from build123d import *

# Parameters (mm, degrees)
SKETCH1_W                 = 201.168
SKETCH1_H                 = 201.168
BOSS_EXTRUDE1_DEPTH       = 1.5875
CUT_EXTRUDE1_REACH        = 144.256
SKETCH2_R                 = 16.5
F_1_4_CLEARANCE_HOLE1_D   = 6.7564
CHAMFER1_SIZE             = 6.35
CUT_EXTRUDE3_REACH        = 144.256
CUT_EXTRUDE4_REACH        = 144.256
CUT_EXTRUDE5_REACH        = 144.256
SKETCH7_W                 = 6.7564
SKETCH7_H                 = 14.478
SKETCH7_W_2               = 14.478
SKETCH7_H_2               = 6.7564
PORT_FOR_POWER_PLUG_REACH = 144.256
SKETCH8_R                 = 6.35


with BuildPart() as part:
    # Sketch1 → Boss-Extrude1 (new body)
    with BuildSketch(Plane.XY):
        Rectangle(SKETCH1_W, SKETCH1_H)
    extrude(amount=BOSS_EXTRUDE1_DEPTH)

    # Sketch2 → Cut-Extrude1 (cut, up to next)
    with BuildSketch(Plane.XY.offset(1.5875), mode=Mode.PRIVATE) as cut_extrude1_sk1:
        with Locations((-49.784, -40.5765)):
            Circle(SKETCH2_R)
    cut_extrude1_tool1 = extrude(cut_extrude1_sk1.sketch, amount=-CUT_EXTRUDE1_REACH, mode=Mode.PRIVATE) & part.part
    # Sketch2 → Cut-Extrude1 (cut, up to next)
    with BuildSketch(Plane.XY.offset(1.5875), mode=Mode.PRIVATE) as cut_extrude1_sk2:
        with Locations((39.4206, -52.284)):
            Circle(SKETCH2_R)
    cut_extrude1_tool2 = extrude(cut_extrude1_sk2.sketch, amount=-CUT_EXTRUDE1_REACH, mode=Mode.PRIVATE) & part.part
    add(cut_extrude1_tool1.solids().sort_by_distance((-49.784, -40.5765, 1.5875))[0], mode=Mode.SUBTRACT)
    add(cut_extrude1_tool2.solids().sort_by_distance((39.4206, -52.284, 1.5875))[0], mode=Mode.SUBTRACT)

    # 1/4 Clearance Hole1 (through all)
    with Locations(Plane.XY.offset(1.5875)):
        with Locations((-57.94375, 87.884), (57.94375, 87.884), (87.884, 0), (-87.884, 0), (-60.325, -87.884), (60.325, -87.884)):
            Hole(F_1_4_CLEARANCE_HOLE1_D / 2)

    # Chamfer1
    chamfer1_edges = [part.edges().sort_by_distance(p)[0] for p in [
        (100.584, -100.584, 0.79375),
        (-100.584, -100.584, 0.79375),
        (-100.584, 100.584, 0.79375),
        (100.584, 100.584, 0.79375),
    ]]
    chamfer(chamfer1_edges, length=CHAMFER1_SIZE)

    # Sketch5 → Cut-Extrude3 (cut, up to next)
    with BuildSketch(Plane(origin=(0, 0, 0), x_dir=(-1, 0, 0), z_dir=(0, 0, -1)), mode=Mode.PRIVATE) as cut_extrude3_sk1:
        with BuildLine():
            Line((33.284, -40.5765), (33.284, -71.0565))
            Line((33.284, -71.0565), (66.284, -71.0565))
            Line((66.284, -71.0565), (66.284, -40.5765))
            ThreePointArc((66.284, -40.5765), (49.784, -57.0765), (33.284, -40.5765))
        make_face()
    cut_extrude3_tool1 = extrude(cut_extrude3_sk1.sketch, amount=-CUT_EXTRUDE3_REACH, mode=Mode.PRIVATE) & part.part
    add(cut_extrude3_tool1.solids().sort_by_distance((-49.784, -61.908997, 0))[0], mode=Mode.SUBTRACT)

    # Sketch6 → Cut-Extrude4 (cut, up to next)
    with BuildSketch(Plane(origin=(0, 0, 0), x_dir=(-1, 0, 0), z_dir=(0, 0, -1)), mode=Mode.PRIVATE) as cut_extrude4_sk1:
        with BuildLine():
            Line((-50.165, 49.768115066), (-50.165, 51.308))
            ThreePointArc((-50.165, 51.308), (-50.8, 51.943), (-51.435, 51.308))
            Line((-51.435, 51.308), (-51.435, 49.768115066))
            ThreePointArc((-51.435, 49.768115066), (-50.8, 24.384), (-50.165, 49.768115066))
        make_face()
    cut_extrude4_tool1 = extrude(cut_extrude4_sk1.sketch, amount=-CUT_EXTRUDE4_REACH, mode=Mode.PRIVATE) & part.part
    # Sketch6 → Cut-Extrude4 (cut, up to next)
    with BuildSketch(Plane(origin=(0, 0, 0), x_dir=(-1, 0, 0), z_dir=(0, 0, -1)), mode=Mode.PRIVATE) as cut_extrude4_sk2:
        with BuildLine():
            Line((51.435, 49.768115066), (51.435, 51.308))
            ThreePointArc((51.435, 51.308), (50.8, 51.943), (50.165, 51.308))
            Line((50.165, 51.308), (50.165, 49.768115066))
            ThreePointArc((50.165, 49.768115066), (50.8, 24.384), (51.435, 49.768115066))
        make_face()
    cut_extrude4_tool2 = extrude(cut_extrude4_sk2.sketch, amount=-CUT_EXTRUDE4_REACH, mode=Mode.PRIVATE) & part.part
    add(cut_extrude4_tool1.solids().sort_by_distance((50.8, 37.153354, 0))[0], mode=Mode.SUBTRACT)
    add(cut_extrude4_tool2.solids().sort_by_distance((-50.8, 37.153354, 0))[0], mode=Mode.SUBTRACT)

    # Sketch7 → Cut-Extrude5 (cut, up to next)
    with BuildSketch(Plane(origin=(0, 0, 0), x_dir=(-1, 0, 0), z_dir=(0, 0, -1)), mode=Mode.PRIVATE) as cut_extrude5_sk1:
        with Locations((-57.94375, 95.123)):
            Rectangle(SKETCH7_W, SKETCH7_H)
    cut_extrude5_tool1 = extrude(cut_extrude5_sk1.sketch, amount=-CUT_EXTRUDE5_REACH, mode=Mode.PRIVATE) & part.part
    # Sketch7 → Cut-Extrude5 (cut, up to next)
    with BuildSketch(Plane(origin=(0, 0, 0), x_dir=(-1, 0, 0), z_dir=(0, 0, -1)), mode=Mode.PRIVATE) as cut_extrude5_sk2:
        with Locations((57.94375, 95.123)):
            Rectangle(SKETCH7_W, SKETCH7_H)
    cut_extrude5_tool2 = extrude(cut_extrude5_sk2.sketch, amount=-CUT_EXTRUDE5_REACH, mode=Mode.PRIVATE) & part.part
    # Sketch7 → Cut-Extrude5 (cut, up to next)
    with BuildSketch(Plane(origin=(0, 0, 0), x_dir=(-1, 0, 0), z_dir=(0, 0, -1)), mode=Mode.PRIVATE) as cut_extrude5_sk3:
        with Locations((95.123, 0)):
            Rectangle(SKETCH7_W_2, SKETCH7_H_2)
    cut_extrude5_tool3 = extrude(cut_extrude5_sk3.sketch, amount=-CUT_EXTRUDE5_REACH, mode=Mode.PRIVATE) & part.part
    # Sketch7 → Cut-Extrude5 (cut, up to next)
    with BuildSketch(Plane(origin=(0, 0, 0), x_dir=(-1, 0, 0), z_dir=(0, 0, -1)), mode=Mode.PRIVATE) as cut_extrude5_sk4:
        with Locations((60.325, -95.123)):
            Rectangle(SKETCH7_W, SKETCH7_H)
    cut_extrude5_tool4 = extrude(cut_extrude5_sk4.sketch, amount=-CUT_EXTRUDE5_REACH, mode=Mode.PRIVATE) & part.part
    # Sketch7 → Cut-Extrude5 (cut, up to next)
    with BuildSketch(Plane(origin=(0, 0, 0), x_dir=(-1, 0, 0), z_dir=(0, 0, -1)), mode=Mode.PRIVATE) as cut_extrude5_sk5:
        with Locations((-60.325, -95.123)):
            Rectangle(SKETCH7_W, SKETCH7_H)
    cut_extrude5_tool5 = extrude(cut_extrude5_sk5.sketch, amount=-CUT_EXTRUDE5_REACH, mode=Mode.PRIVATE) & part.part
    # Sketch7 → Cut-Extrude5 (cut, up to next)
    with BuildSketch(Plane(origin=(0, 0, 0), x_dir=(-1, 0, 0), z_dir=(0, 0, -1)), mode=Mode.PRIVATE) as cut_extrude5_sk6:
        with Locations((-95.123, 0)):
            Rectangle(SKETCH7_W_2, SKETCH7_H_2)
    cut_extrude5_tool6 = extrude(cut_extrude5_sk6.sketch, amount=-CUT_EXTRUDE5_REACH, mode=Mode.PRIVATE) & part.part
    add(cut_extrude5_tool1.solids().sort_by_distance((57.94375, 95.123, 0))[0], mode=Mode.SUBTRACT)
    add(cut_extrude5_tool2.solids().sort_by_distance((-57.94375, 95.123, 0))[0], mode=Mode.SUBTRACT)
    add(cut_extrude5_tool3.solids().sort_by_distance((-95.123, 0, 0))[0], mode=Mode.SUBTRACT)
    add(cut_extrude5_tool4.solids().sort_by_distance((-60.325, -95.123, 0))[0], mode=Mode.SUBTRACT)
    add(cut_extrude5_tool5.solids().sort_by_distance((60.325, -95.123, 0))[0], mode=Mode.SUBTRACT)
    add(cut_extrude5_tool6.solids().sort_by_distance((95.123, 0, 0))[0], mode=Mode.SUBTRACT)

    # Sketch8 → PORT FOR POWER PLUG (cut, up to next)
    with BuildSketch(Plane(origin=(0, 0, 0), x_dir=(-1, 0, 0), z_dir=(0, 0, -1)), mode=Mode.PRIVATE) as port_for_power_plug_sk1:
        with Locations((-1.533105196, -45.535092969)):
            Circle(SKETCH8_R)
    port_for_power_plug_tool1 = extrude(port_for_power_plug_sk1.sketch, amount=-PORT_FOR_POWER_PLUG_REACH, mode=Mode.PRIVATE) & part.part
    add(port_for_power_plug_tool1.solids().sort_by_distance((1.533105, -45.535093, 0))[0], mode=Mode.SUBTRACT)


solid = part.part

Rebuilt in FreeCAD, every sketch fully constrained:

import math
import FreeCAD as App
import Part
import Sketcher
from FreeCAD import Vector
Q = App.Units.Quantity


def edges_at(feature, points):
    """Names of the edges that pass closest to the given points."""
    edges = feature.Shape.Edges
    near = lambda p: min(range(len(edges)), key=lambda i: edges[i].distToShape(Part.Vertex(*p))[0])
    return sorted({f"Edge{near(p) + 1}" for p in points})


def add_polygon(sketch, points):
    """Adds a closed chain of lines whose ends are joined by coincident constraints."""
    first, n = sketch.GeometryCount, len(points)
    for a, b in zip(points, points[1:] + points[:1]):
        sketch.addGeometry(Part.LineSegment(App.Vector(*a, 0), App.Vector(*b, 0)), False)
    for i in range(n):
        sketch.addConstraint(Sketcher.Constraint("Coincident", first + i, 2, first + (i + 1) % n, 1))

doc = App.newDocument("Part")
body = doc.addObject("PartDesign::Body", "Body")

# Sketch on XY plane
sketch1 = body.newObject("Sketcher::SketchObject", "Sketch")
sketch1.AttachmentSupport = (doc.getObject("XY_Plane"), [""])
sketch1.MapMode = "FlatFace"
add_polygon(sketch1, [(-101, 101), (-101, -101), (101, -101), (101, 101)])  # lines 0-3
sketch1.addConstraint(Sketcher.Constraint("Vertical", 0))
sketch1.addConstraint(Sketcher.Constraint("Horizontal", 1))
sketch1.addConstraint(Sketcher.Constraint("Vertical", 2))
sketch1.addConstraint(Sketcher.Constraint("Horizontal", 3))
sketch1.addConstraint(Sketcher.Constraint("Symmetric", 0, 2, 2, 2, -1, 1))
sketch1.addConstraint(Sketcher.Constraint("Equal", 3, 0))
sketch1.addConstraint(Sketcher.Constraint("DistanceX", 1, 1, 1, 2, Q("7.92 in")))
pad1 = body.newObject("PartDesign::Pad", "Pad")
pad1.Profile = sketch1
pad1.Length = Q("0.0625 in")

# Sketch on XY plane
sketch2 = body.newObject("Sketcher::SketchObject", "Sketch001")
sketch2.AttachmentSupport = (doc.getObject("XY_Plane"), [""])
sketch2.MapMode = "FlatFace"
sketch2.AttachmentOffset = App.Placement(Vector(0, 0, 0.0625 * 25.4), App.Rotation())
sketch2.addGeometry(Part.Circle(Vector(-50, -41, 0), Vector(0, 0, 1), 16), False)
sketch2.addConstraint(Sketcher.Constraint("Diameter", 0, 33.0))
sketch2.addConstraint(Sketcher.Constraint("DistanceX", 0, 3, -1, 1, Q("1.96 in")))
sketch2.addConstraint(Sketcher.Constraint("DistanceY", 0, 3, -1, 1, Q("1.5975 in")))
pocket1 = body.newObject("PartDesign::Pocket", "Pocket")
pocket1.Profile = sketch2
pocket1.Type = "UpToFirst"

# Sketch on XY plane
sketch3 = body.newObject("Sketcher::SketchObject", "Sketch002")
sketch3.AttachmentSupport = (doc.getObject("XY_Plane"), [""])
sketch3.MapMode = "FlatFace"
sketch3.AttachmentOffset = App.Placement(Vector(0, 0, 0.0625 * 25.4), App.Rotation())
sketch3.addGeometry(Part.Circle(Vector(39, -52, 0), Vector(0, 0, 1), 16), False)
sketch3.addConstraint(Sketcher.Constraint("Diameter", 0, 33.0))
sketch3.addConstraint(Sketcher.Constraint("DistanceX", -1, 1, 0, 3, 39.4206))
sketch3.addConstraint(Sketcher.Constraint("DistanceY", 0, 3, -1, 1, 52.284))
pocket2 = body.newObject("PartDesign::Pocket", "Pocket001")
pocket2.Profile = sketch3
pocket2.Type = "UpToFirst"

# Sketch on XY plane
sketch4 = body.newObject("Sketcher::SketchObject", "Sketch003")
sketch4.AttachmentSupport = (doc.getObject("XY_Plane"), [""])
sketch4.MapMode = "FlatFace"
sketch4.AttachmentOffset = App.Placement(Vector(0, 0, 0.0625 * 25.4), App.Rotation())
sketch4.addGeometry(Part.Circle(Vector(-57.9, 87.9, 0), Vector(0, 0, 1), 3.4), False)
sketch4.addGeometry(Part.Circle(Vector(57.9, 87.9, 0), Vector(0, 0, 1), 3.4), False)
sketch4.addGeometry(Part.Circle(Vector(87.9, 0, 0), Vector(0, 0, 1), 3.4), False)
sketch4.addGeometry(Part.Circle(Vector(-87.9, 0, 0), Vector(0, 0, 1), 3.4), False)
sketch4.addGeometry(Part.Circle(Vector(-60.3, -87.9, 0), Vector(0, 0, 1), 3.4), False)
sketch4.addGeometry(Part.Circle(Vector(60.3, -87.9, 0), Vector(0, 0, 1), 3.4), False)
sketch4.addConstraint(Sketcher.Constraint("Equal", 0, 1))
sketch4.addConstraint(Sketcher.Constraint("Equal", 1, 2))
sketch4.addConstraint(Sketcher.Constraint("Equal", 2, 3))
sketch4.addConstraint(Sketcher.Constraint("Equal", 3, 4))
sketch4.addConstraint(Sketcher.Constraint("Equal", 4, 5))
sketch4.addConstraint(Sketcher.Constraint("Symmetric", 2, 3, 3, 3, -1, 1))
sketch4.addConstraint(Sketcher.Constraint("Symmetric", 0, 3, 1, 3, -2))
sketch4.addConstraint(Sketcher.Constraint("Symmetric", 4, 3, 5, 3, -2))
sketch4.addConstraint(Sketcher.Constraint("PointOnObject", 2, 3, -1))
sketch4.addConstraint(Sketcher.Constraint("Diameter", 0, Q("0.266 in")))
sketch4.addConstraint(Sketcher.Constraint("DistanceY", -1, 1, 0, 3, Q("3.46 in")))
sketch4.addConstraint(Sketcher.Constraint("DistanceX", -1, 1, 2, 3, Q("3.46 in")))
sketch4.addConstraint(Sketcher.Constraint("DistanceY", 4, 3, -1, 1, Q("3.46 in")))
sketch4.addConstraint(Sketcher.Constraint("DistanceX", 4, 3, 5, 3, Q("4.75 in")))
sketch4.addConstraint(Sketcher.Constraint("DistanceX", 0, 3, -1, 1, Q("2.28125 in")))
doc.recompute()
hole = body.newObject("PartDesign::Hole", "Hole")
hole.Profile = sketch4
hole.ThreadType = "None"
hole.Diameter = Q("0.266 in")
hole.DepthType = "ThroughAll"
doc.recompute()

chamfer = body.newObject("PartDesign::Chamfer", "Chamfer")
chamfer.Base = (hole, edges_at(hole, [
    (100.584, -100.584, 0.794),
    (-100.584, -100.584, 0.794),
    (-100.584, 100.584, 0.794),
    (100.584, 100.584, 0.794),
]))
chamfer.Size = Q("0.25 in")

# Sketch on XY plane
sketch5 = body.newObject("Sketcher::SketchObject", "Sketch004")
sketch5.AttachmentSupport = (doc.getObject("XY_Plane"), [""])
sketch5.MapMode = "FlatFace"
sketch5.addGeometry(Part.LineSegment(Vector(-33, -41, 0), Vector(-33, -71, 0)), False)
sketch5.addGeometry(Part.LineSegment(Vector(-33, -71, 0), Vector(-66, -71, 0)), False)
sketch5.addGeometry(Part.LineSegment(Vector(-66, -71, 0), Vector(-66, -41, 0)), False)
sketch5.addGeometry(Part.ArcOfCircle(Part.Circle(Vector(-50, -41, 0), Vector(0, 0, 1), 16), math.radians(180), math.radians(360)), False)
sketch5.addConstraint(Sketcher.Constraint("Coincident", 0, 2, 1, 1))
sketch5.addConstraint(Sketcher.Constraint("Coincident", 1, 2, 2, 1))
sketch5.addConstraint(Sketcher.Constraint("Tangent", 2, 2, 3, 1))
sketch5.addConstraint(Sketcher.Constraint("Tangent", 3, 2, 0, 1))
sketch5.addConstraint(Sketcher.Constraint("Vertical", 0))
sketch5.addConstraint(Sketcher.Constraint("Horizontal", 1))
sketch5.addConstraint(Sketcher.Constraint("Vertical", 2))
sketch5.addConstraint(Sketcher.Constraint("DistanceY", 0, 2, 0, 1, Q("1.2 in")))
sketch5.addConstraint(Sketcher.Constraint("DistanceX", 3, 3, -1, 1, Q("1.96 in")))
sketch5.addConstraint(Sketcher.Constraint("Radius", 3, 16.5))
sketch5.addConstraint(Sketcher.Constraint("DistanceY", 3, 3, -1, 1, Q("1.5975 in")))
pocket3 = body.newObject("PartDesign::Pocket", "Pocket002")
pocket3.Profile = sketch5
pocket3.Type = "UpToFirst"
pocket3.Reversed = True

# Sketch on XY plane
sketch6 = body.newObject("Sketcher::SketchObject", "Sketch005")
sketch6.AttachmentSupport = (doc.getObject("XY_Plane"), [""])
sketch6.MapMode = "FlatFace"
sketch6.addGeometry(Part.LineSegment(Vector(50.2, 49.8, 0), Vector(50.2, 51.3, 0)), False)
sketch6.addGeometry(Part.ArcOfCircle(Part.Circle(Vector(50.8, 51.3, 0), Vector(0, 0, 1), 0.6), math.radians(0), math.radians(180)), False)
sketch6.addGeometry(Part.LineSegment(Vector(51.4, 51.3, 0), Vector(51.4, 49.8, 0)), False)
sketch6.addGeometry(Part.ArcOfCircle(Part.Circle(Vector(50.8, 37.1, 0), Vector(0, 0, 1), 12.7), math.radians(93), math.radians(447)), False)
sketch6.addConstraint(Sketcher.Constraint("Tangent", 0, 2, 1, 2))
sketch6.addConstraint(Sketcher.Constraint("Tangent", 1, 1, 2, 1))
sketch6.addConstraint(Sketcher.Constraint("Coincident", 2, 2, 3, 2))
sketch6.addConstraint(Sketcher.Constraint("Coincident", 3, 1, 0, 1))
sketch6.addConstraint(Sketcher.Constraint("Vertical", 0))
sketch6.addConstraint(Sketcher.Constraint("Vertical", 2))
sketch6.addConstraint(Sketcher.Constraint("Horizontal", 2, 2, 3, 1))
sketch6.addConstraint(Sketcher.Constraint("Radius", 3, Q("0.5 in")))
sketch6.addConstraint(Sketcher.Constraint("DistanceX", -1, 1, 1, 3, Q("2 in")))
sketch6.addConstraint(Sketcher.Constraint("Radius", 1, Q("0.025 in")))
sketch6.addConstraint(Sketcher.Constraint("DistanceY", -1, 1, 1, 3, Q("2.02 in")))
sketch6.addConstraint(Sketcher.Constraint("DistanceY", -1, 1, 3, 3, Q("1.46 in")))
pocket4 = body.newObject("PartDesign::Pocket", "Pocket003")
pocket4.Profile = sketch6
pocket4.Type = "UpToFirst"
pocket4.Reversed = True

# Sketch on XY plane
sketch7 = body.newObject("Sketcher::SketchObject", "Sketch006")
sketch7.AttachmentSupport = (doc.getObject("XY_Plane"), [""])
sketch7.MapMode = "FlatFace"
sketch7.addGeometry(Part.LineSegment(Vector(-51.4, 49.8, 0), Vector(-51.4, 51.3, 0)), False)
sketch7.addGeometry(Part.ArcOfCircle(Part.Circle(Vector(-50.8, 51.3, 0), Vector(0, 0, 1), 0.6), math.radians(0), math.radians(180)), False)
sketch7.addGeometry(Part.LineSegment(Vector(-50.2, 51.3, 0), Vector(-50.2, 49.8, 0)), False)
sketch7.addGeometry(Part.ArcOfCircle(Part.Circle(Vector(-50.8, 37.1, 0), Vector(0, 0, 1), 12.7), math.radians(93), math.radians(447)), False)
sketch7.addConstraint(Sketcher.Constraint("Tangent", 0, 2, 1, 2))
sketch7.addConstraint(Sketcher.Constraint("Tangent", 1, 1, 2, 1))
sketch7.addConstraint(Sketcher.Constraint("Coincident", 2, 2, 3, 2))
sketch7.addConstraint(Sketcher.Constraint("Coincident", 3, 1, 0, 1))
sketch7.addConstraint(Sketcher.Constraint("Vertical", 0))
sketch7.addConstraint(Sketcher.Constraint("Vertical", 2))
sketch7.addConstraint(Sketcher.Constraint("Horizontal", 2, 2, 3, 1))
sketch7.addConstraint(Sketcher.Constraint("Radius", 3, Q("0.5 in")))
sketch7.addConstraint(Sketcher.Constraint("DistanceX", 1, 3, -1, 1, Q("2 in")))
sketch7.addConstraint(Sketcher.Constraint("Radius", 1, Q("0.025 in")))
sketch7.addConstraint(Sketcher.Constraint("DistanceY", -1, 1, 1, 3, Q("2.02 in")))
sketch7.addConstraint(Sketcher.Constraint("DistanceY", -1, 1, 3, 3, Q("1.46 in")))
pocket5 = body.newObject("PartDesign::Pocket", "Pocket004")
pocket5.Profile = sketch7
pocket5.Type = "UpToFirst"
pocket5.Reversed = True

# Sketch on XY plane
sketch8 = body.newObject("Sketcher::SketchObject", "Sketch007")
sketch8.AttachmentSupport = (doc.getObject("XY_Plane"), [""])
sketch8.MapMode = "FlatFace"
add_polygon(sketch8, [(61, 102), (61, 88), (55, 88), (55, 102)])  # lines 0-3
sketch8.addConstraint(Sketcher.Constraint("Vertical", 0))
sketch8.addConstraint(Sketcher.Constraint("Horizontal", 1))
sketch8.addConstraint(Sketcher.Constraint("Vertical", 2))
sketch8.addConstraint(Sketcher.Constraint("Horizontal", 3))
sketch8.addConstraint(Sketcher.Constraint("DistanceY", 0, 2, 0, 1, Q("0.57 in")))
sketch8.addConstraint(Sketcher.Constraint("DistanceX", 1, 2, 1, 1, Q("0.266 in")))
sketch8.addConstraint(Sketcher.Constraint("DistanceY", -1, 1, 0, 2, Q("3.46 in")))
sketch8.addConstraint(Sketcher.Constraint("DistanceX", -1, 1, 0, 2, 61.32195))
pocket6 = body.newObject("PartDesign::Pocket", "Pocket005")
pocket6.Profile = sketch8
pocket6.Type = "UpToFirst"
pocket6.Reversed = True

# Sketch on XY plane
sketch9 = body.newObject("Sketcher::SketchObject", "Sketch008")
sketch9.AttachmentSupport = (doc.getObject("XY_Plane"), [""])
sketch9.MapMode = "FlatFace"
add_polygon(sketch9, [(-55, 102), (-55, 88), (-61, 88), (-61, 102)])  # lines 0-3
sketch9.addConstraint(Sketcher.Constraint("Vertical", 0))
sketch9.addConstraint(Sketcher.Constraint("Horizontal", 1))
sketch9.addConstraint(Sketcher.Constraint("Vertical", 2))
sketch9.addConstraint(Sketcher.Constraint("Horizontal", 3))
sketch9.addConstraint(Sketcher.Constraint("DistanceY", 0, 2, 0, 1, Q("0.57 in")))
sketch9.addConstraint(Sketcher.Constraint("DistanceX", 1, 2, 1, 1, Q("0.266 in")))
sketch9.addConstraint(Sketcher.Constraint("DistanceY", -1, 1, 0, 2, Q("3.46 in")))
sketch9.addConstraint(Sketcher.Constraint("DistanceX", 0, 2, -1, 1, 54.56555))
pocket7 = body.newObject("PartDesign::Pocket", "Pocket006")
pocket7.Profile = sketch9
pocket7.Type = "UpToFirst"
pocket7.Reversed = True

# Sketch on XY plane
sketch10 = body.newObject("Sketcher::SketchObject", "Sketch009")
sketch10.AttachmentSupport = (doc.getObject("XY_Plane"), [""])
sketch10.MapMode = "FlatFace"
add_polygon(sketch10, [(-88, 3), (-88, -3), (-102, -3), (-102, 3)])  # lines 0-3
sketch10.addConstraint(Sketcher.Constraint("Vertical", 0))
sketch10.addConstraint(Sketcher.Constraint("Horizontal", 1))
sketch10.addConstraint(Sketcher.Constraint("Vertical", 2))
sketch10.addConstraint(Sketcher.Constraint("Horizontal", 3))
sketch10.addConstraint(Sketcher.Constraint("DistanceX", 1, 2, 1, 1, Q("0.57 in")))
sketch10.addConstraint(Sketcher.Constraint("DistanceY", 0, 2, 0, 1, Q("0.266 in")))
sketch10.addConstraint(Sketcher.Constraint("DistanceX", 0, 2, -1, 1, Q("3.46 in")))
sketch10.addConstraint(Sketcher.Constraint("DistanceY", 0, 2, -1, 1, Q("0.133 in")))
pocket8 = body.newObject("PartDesign::Pocket", "Pocket007")
pocket8.Profile = sketch10
pocket8.Type = "UpToFirst"
pocket8.Reversed = True

# Sketch on XY plane
sketch11 = body.newObject("Sketcher::SketchObject", "Sketch010")
sketch11.AttachmentSupport = (doc.getObject("XY_Plane"), [""])
sketch11.MapMode = "FlatFace"
add_polygon(sketch11, [(-57, -88), (-57, -102), (-64, -102), (-64, -88)])  # lines 0-3
sketch11.addConstraint(Sketcher.Constraint("Vertical", 0))
sketch11.addConstraint(Sketcher.Constraint("Horizontal", 1))
sketch11.addConstraint(Sketcher.Constraint("Vertical", 2))
sketch11.addConstraint(Sketcher.Constraint("Horizontal", 3))
sketch11.addConstraint(Sketcher.Constraint("DistanceY", 0, 2, 0, 1, Q("0.57 in")))
sketch11.addConstraint(Sketcher.Constraint("DistanceX", 1, 2, 1, 1, Q("0.266 in")))
sketch11.addConstraint(Sketcher.Constraint("DistanceY", 0, 2, -1, 1, Q("4.03 in")))
sketch11.addConstraint(Sketcher.Constraint("DistanceX", 0, 2, -1, 1, Q("2.242 in")))
pocket9 = body.newObject("PartDesign::Pocket", "Pocket008")
pocket9.Profile = sketch11
pocket9.Type = "UpToFirst"
pocket9.Reversed = True

# Sketch on XY plane
sketch12 = body.newObject("Sketcher::SketchObject", "Sketch011")
sketch12.AttachmentSupport = (doc.getObject("XY_Plane"), [""])
sketch12.MapMode = "FlatFace"
add_polygon(sketch12, [(64, -88), (64, -102), (57, -102), (57, -88)])  # lines 0-3
sketch12.addConstraint(Sketcher.Constraint("Vertical", 0))
sketch12.addConstraint(Sketcher.Constraint("Horizontal", 1))
sketch12.addConstraint(Sketcher.Constraint("Vertical", 2))
sketch12.addConstraint(Sketcher.Constraint("Horizontal", 3))
sketch12.addConstraint(Sketcher.Constraint("DistanceY", 0, 2, 0, 1, Q("0.57 in")))
sketch12.addConstraint(Sketcher.Constraint("DistanceX", 1, 2, 1, 1, Q("0.266 in")))
sketch12.addConstraint(Sketcher.Constraint("DistanceY", 0, 2, -1, 1, Q("4.03 in")))
sketch12.addConstraint(Sketcher.Constraint("DistanceX", -1, 1, 0, 2, Q("2.508 in")))
pocket10 = body.newObject("PartDesign::Pocket", "Pocket009")
pocket10.Profile = sketch12
pocket10.Type = "UpToFirst"
pocket10.Reversed = True

# Sketch on XY plane
sketch13 = body.newObject("Sketcher::SketchObject", "Sketch012")
sketch13.AttachmentSupport = (doc.getObject("XY_Plane"), [""])
sketch13.MapMode = "FlatFace"
add_polygon(sketch13, [(102, 3), (102, -3), (88, -3), (88, 3)])  # lines 0-3
sketch13.addConstraint(Sketcher.Constraint("Vertical", 0))
sketch13.addConstraint(Sketcher.Constraint("Horizontal", 1))
sketch13.addConstraint(Sketcher.Constraint("Vertical", 2))
sketch13.addConstraint(Sketcher.Constraint("Horizontal", 3))
sketch13.addConstraint(Sketcher.Constraint("DistanceX", 1, 2, 1, 1, Q("0.57 in")))
sketch13.addConstraint(Sketcher.Constraint("DistanceY", 0, 2, 0, 1, Q("0.266 in")))
sketch13.addConstraint(Sketcher.Constraint("DistanceX", -1, 1, 0, 2, Q("4.03 in")))
sketch13.addConstraint(Sketcher.Constraint("DistanceY", 0, 2, -1, 1, Q("0.133 in")))
pocket11 = body.newObject("PartDesign::Pocket", "Pocket010")
pocket11.Profile = sketch13
pocket11.Type = "UpToFirst"
pocket11.Reversed = True

# Sketch on XY plane
sketch14 = body.newObject("Sketcher::SketchObject", "Sketch013")
sketch14.AttachmentSupport = (doc.getObject("XY_Plane"), [""])
sketch14.MapMode = "FlatFace"
sketch14.addGeometry(Part.Circle(Vector(2, -46, 0), Vector(0, 0, 1), 6), False)
sketch14.addConstraint(Sketcher.Constraint("Diameter", 0, Q("0.5 in")))
sketch14.addConstraint(Sketcher.Constraint("DistanceX", -1, 1, 0, 3, 1.533105))
sketch14.addConstraint(Sketcher.Constraint("DistanceY", 0, 3, -1, 1, 45.535093))
pocket12 = body.newObject("PartDesign::Pocket", "Pocket011")
pocket12.Profile = sketch14
pocket12.Type = "UpToFirst"
pocket12.Reversed = True

doc.recompute()
